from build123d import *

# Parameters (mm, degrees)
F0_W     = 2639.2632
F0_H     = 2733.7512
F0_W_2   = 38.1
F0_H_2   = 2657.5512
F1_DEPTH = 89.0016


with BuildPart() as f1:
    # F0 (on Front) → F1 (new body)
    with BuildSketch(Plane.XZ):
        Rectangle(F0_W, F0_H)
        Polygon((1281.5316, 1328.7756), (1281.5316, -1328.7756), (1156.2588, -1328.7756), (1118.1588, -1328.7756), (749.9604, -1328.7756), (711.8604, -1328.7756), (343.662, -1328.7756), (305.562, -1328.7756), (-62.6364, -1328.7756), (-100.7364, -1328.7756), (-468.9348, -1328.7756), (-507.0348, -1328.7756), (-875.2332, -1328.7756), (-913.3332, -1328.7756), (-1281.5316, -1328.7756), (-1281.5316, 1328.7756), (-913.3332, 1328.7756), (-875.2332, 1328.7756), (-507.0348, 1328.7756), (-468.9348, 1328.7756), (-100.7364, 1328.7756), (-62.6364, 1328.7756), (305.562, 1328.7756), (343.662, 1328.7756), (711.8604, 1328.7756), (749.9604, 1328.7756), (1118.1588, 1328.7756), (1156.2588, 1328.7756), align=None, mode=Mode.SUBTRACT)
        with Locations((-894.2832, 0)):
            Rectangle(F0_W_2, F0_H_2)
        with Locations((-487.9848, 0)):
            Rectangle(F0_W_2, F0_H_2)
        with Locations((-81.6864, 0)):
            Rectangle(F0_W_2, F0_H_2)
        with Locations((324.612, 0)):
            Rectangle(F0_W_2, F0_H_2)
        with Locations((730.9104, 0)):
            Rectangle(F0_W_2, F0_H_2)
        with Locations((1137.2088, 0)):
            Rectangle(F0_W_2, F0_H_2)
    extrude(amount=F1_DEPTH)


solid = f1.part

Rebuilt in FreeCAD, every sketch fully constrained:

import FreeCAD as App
import Part
import Sketcher
from FreeCAD import Vector
Q = App.Units.Quantity

doc = App.newDocument("Part")
params = doc.addObject("Spreadsheet::Sheet", "Params")
for row, (alias, value) in enumerate([
    ("sketch1_width", "103.908 in"),
    ("sketch1_width2", "14.496 in"),
    ("sketch1_height", "107.628 in"),
    ("pad1_length", "3.504 in"),
], start=1):
    params.set(f"A{row}", alias)
    params.set(f"B{row}", "=" + value)
    params.setAlias(f"B{row}", alias)

body = doc.addObject("PartDesign::Body", "Body")

sketch1 = doc.addObject("Sketcher::SketchObject", "Sketch")
body.addObject(sketch1)
sketch1.AttachmentSupport = (doc.XZ_Plane, [""])
sketch1.MapMode = "FlatFace"
sketch1.addGeometry(Part.LineSegment(Vector(-1319.6316, 1366.8756, 0), Vector(-1319.6316, -1366.8756, 0)), False)
sketch1.addGeometry(Part.LineSegment(Vector(-1319.6316, -1366.8756, 0), Vector(1319.6316, -1366.8756, 0)), False)
sketch1.addGeometry(Part.LineSegment(Vector(1319.6316, -1366.8756, 0), Vector(1319.6316, 1366.8756, 0)), False)
sketch1.addGeometry(Part.LineSegment(Vector(1319.6316, 1366.8756, 0), Vector(-1319.6316, 1366.8756, 0)), False)
sketch1.addGeometry(Part.LineSegment(Vector(-1281.5316, 1328.7756, 0), Vector(-913.3332, 1328.7756, 0)), False)
sketch1.addGeometry(Part.LineSegment(Vector(-913.3332, 1328.7756, 0), Vector(-913.3332, -1328.7756, 0)), False)
sketch1.addGeometry(Part.LineSegment(Vector(-913.3332, -1328.7756, 0), Vector(-1281.5316, -1328.7756, 0)), False)
sketch1.addGeometry(Part.LineSegment(Vector(-1281.5316, -1328.7756, 0), Vector(-1281.5316, 1328.7756, 0)), False)
sketch1.addGeometry(Part.LineSegment(Vector(-875.2332, 1328.7756, 0), Vector(-507.0348, 1328.7756, 0)), False)
sketch1.addGeometry(Part.LineSegment(Vector(-507.0348, 1328.7756, 0), Vector(-507.0348, -1328.7756, 0)), False)
sketch1.addGeometry(Part.LineSegment(Vector(-507.0348, -1328.7756, 0), Vector(-875.2332, -1328.7756, 0)), False)
sketch1.addGeometry(Part.LineSegment(Vector(-875.2332, -1328.7756, 0), Vector(-875.2332, 1328.7756, 0)), False)
sketch1.addGeometry(Part.LineSegment(Vector(-468.9348, 1328.7756, 0), Vector(-100.7364, 1328.7756, 0)), False)
sketch1.addGeometry(Part.LineSegment(Vector(-100.7364, 1328.7756, 0), Vector(-100.7364, -1328.7756, 0)), False)
sketch1.addGeometry(Part.LineSegment(Vector(-100.7364, -1328.7756, 0), Vector(-468.9348, -1328.7756, 0)), False)
sketch1.addGeometry(Part.LineSegment(Vector(-468.9348, -1328.7756, 0), Vector(-468.9348, 1328.7756, 0)), False)
sketch1.addGeometry(Part.LineSegment(Vector(-62.6364, 1328.7756, 0), Vector(305.562, 1328.7756, 0)), False)
sketch1.addGeometry(Part.LineSegment(Vector(305.562, 1328.7756, 0), Vector(305.562, -1328.7756, 0)), False)
sketch1.addGeometry(Part.LineSegment(Vector(305.562, -1328.7756, 0), Vector(-62.6364, -1328.7756, 0)), False)
sketch1.addGeometry(Part.LineSegment(Vector(-62.6364, -1328.7756, 0), Vector(-62.6364, 1328.7756, 0)), False)
sketch1.addGeometry(Part.LineSegment(Vector(343.662, 1328.7756, 0), Vector(711.8604, 1328.7756, 0)), False)
sketch1.addGeometry(Part.LineSegment(Vector(711.8604, 1328.7756, 0), Vector(711.8604, -1328.7756, 0)), False)
sketch1.addGeometry(Part.LineSegment(Vector(711.8604, -1328.7756, 0), Vector(343.662, -1328.7756, 0)), False)
sketch1.addGeometry(Part.LineSegment(Vector(343.662, -1328.7756, 0), Vector(343.662, 1328.7756, 0)), False)
sketch1.addGeometry(Part.LineSegment(Vector(749.9604, 1328.7756, 0), Vector(1118.1588, 1328.7756, 0)), False)
sketch1.addGeometry(Part.LineSegment(Vector(1118.1588, 1328.7756, 0), Vector(1118.1588, -1328.7756, 0)), False)
sketch1.addGeometry(Part.LineSegment(Vector(1118.1588, -1328.7756, 0), Vector(749.9604, -1328.7756, 0)), False)
sketch1.addGeometry(Part.LineSegment(Vector(749.9604, -1328.7756, 0), Vector(749.9604, 1328.7756, 0)), False)
sketch1.addGeometry(Part.LineSegment(Vector(1156.2588, 1328.7756, 0), Vector(1281.5316, 1328.7756, 0)), False)
sketch1.addGeometry(Part.LineSegment(Vector(1281.5316, 1328.7756, 0), Vector(1281.5316, -1328.7756, 0)), False)
sketch1.addGeometry(Part.LineSegment(Vector(1281.5316, -1328.7756, 0), Vector(1156.2588, -1328.7756, 0)), False)
sketch1.addGeometry(Part.LineSegment(Vector(1156.2588, -1328.7756, 0), Vector(1156.2588, 1328.7756, 0)), False)
sketch1.addConstraint(Sketcher.Constraint("Coincident", 0, 2, 1, 1))
sketch1.addConstraint(Sketcher.Constraint("Coincident", 1, 2, 2, 1))
sketch1.addConstraint(Sketcher.Constraint("Coincident", 2, 2, 3, 1))
sketch1.addConstraint(Sketcher.Constraint("Coincident", 3, 2, 0, 1))
sketch1.addConstraint(Sketcher.Constraint("Coincident", 4, 2, 5, 1))
sketch1.addConstraint(Sketcher.Constraint("Coincident", 5, 2, 6, 1))
sketch1.addConstraint(Sketcher.Constraint("Coincident", 6, 2, 7, 1))
sketch1.addConstraint(Sketcher.Constraint("Coincident", 7, 2, 4, 1))
sketch1.addConstraint(Sketcher.Constraint("Coincident", 8, 2, 9, 1))
sketch1.addConstraint(Sketcher.Constraint("Coincident", 9, 2, 10, 1))
sketch1.addConstraint(Sketcher.Constraint("Coincident", 10, 2, 11, 1))
sketch1.addConstraint(Sketcher.Constraint("Coincident", 11, 2, 8, 1))
sketch1.addConstraint(Sketcher.Constraint("Coincident", 12, 2, 13, 1))
sketch1.addConstraint(Sketcher.Constraint("Coincident", 13, 2, 14, 1))
sketch1.addConstraint(Sketcher.Constraint("Coincident", 14, 2, 15, 1))
sketch1.addConstraint(Sketcher.Constraint("Coincident", 15, 2, 12, 1))
sketch1.addConstraint(Sketcher.Constraint("Coincident", 16, 2, 17, 1))
sketch1.addConstraint(Sketcher.Constraint("Coincident", 17, 2, 18, 1))
sketch1.addConstraint(Sketcher.Constraint("Coincident", 18, 2, 19, 1))
sketch1.addConstraint(Sketcher.Constraint("Coincident", 19, 2, 16, 1))
sketch1.addConstraint(Sketcher.Constraint("Coincident", 20, 2, 21, 1))
sketch1.addConstraint(Sketcher.Constraint("Coincident", 21, 2, 22, 1))
sketch1.addConstraint(Sketcher.Constraint("Coincident", 22, 2, 23, 1))
sketch1.addConstraint(Sketcher.Constraint("Coincident", 23, 2, 20, 1))
sketch1.addConstraint(Sketcher.Constraint("Coincident", 24, 2, 25, 1))
sketch1.addConstraint(Sketcher.Constraint("Coincident", 25, 2, 26, 1))
sketch1.addConstraint(Sketcher.Constraint("Coincident", 26, 2, 27, 1))
sketch1.addConstraint(Sketcher.Constraint("Coincident", 27, 2, 24, 1))
sketch1.addConstraint(Sketcher.Constraint("Coincident", 28, 2, 29, 1))
sketch1.addConstraint(Sketcher.Constraint("Coincident", 29, 2, 30, 1))
sketch1.addConstraint(Sketcher.Constraint("Coincident", 30, 2, 31, 1))
sketch1.addConstraint(Sketcher.Constraint("Coincident", 31, 2, 28, 1))
sketch1.addConstraint(Sketcher.Constraint("Vertical", 0))
sketch1.addConstraint(Sketcher.Constraint("Horizontal", 1))
sketch1.addConstraint(Sketcher.Constraint("Vertical", 2))
sketch1.addConstraint(Sketcher.Constraint("Horizontal", 3))
sketch1.addConstraint(Sketcher.Constraint("Horizontal", 4))
sketch1.addConstraint(Sketcher.Constraint("Vertical", 5))
sketch1.addConstraint(Sketcher.Constraint("Horizontal", 6))
sketch1.addConstraint(Sketcher.Constraint("Vertical", 7))
sketch1.addConstraint(Sketcher.Constraint("Horizontal", 8))
sketch1.addConstraint(Sketcher.Constraint("Vertical", 9))
sketch1.addConstraint(Sketcher.Constraint("Horizontal", 10))
sketch1.addConstraint(Sketcher.Constraint("Vertical", 11))
sketch1.addConstraint(Sketcher.Constraint("Horizontal", 12))
sketch1.addConstraint(Sketcher.Constraint("Vertical", 13))
sketch1.addConstraint(Sketcher.Constraint("Horizontal", 14))
sketch1.addConstraint(Sketcher.Constraint("Vertical", 15))
sketch1.addConstraint(Sketcher.Constraint("Horizontal", 16))
sketch1.addConstraint(Sketcher.Constraint("Vertical", 17))
sketch1.addConstraint(Sketcher.Constraint("Horizontal", 18))
sketch1.addConstraint(Sketcher.Constraint("Vertical", 19))
sketch1.addConstraint(Sketcher.Constraint("Horizontal", 20))
sketch1.addConstraint(Sketcher.Constraint("Vertical", 21))
sketch1.addConstraint(Sketcher.Constraint("Horizontal", 22))
sketch1.addConstraint(Sketcher.Constraint("Vertical", 23))
sketch1.addConstraint(Sketcher.Constraint("Horizontal", 24))
sketch1.addConstraint(Sketcher.Constraint("Vertical", 25))
sketch1.addConstraint(Sketcher.Constraint("Horizontal", 26))
sketch1.addConstraint(Sketcher.Constraint("Vertical", 27))
sketch1.addConstraint(Sketcher.Constraint("Horizontal", 28))
sketch1.addConstraint(Sketcher.Constraint("Vertical", 29))
sketch1.addConstraint(Sketcher.Constraint("Horizontal", 30))
sketch1.addConstraint(Sketcher.Constraint("Vertical", 31))
sketch1.addConstraint(Sketcher.Constraint("Symmetric", 0, 2, 2, 2, -1, 1))
sketch1.addConstraint(Sketcher.Constraint("Symmetric", 6, 2, 28, 2, -1, 1))
sketch1.addConstraint(Sketcher.Constraint("Horizontal", 7, 2, 8, 2))
sketch1.addConstraint(Sketcher.Constraint("Horizontal", 6, 2, 9, 2))
sketch1.addConstraint(Sketcher.Constraint("Horizontal", 11, 2, 12, 2))
sketch1.addConstraint(Sketcher.Constraint("Horizontal", 10, 2, 13, 2))
sketch1.addConstraint(Sketcher.Constraint("Horizontal", 15, 2, 16, 2))
sketch1.addConstraint(Sketcher.Constraint("Horizontal", 14, 2, 17, 2))
sketch1.addConstraint(Sketcher.Constraint("Horizontal", 19, 2, 20, 2))
sketch1.addConstraint(Sketcher.Constraint("Horizontal", 18, 2, 21, 2))
sketch1.addConstraint(Sketcher.Constraint("Horizontal", 23, 2, 24, 2))
sketch1.addConstraint(Sketcher.Constraint("Horizontal", 22, 2, 25, 2))
sketch1.addConstraint(Sketcher.Constraint("Horizontal", 27, 2, 28, 2))
sketch1.addConstraint(Sketcher.Constraint("Horizontal", 26, 2, 29, 2))
sketch1.addConstraint(Sketcher.Constraint("Equal", 6, 8))
sketch1.addConstraint(Sketcher.Constraint("Equal", 10, 12))
sketch1.addConstraint(Sketcher.Constraint("Equal", 14, 16))
sketch1.addConstraint(Sketcher.Constraint("Equal", 18, 20))
sketch1.addConstraint(Sketcher.Constraint("Equal", 22, 24))
sketch1.addConstraint(Sketcher.Constraint("DistanceY", 4, 2, 3, 2, Q("1.5 in")))
sketch1.addConstraint(Sketcher.Constraint("DistanceX", 0, 2, 6, 2, Q("1.5 in")))
sketch1.addConstraint(Sketcher.Constraint("DistanceX", 5, 2, 10, 2, Q("1.5 in")))
sketch1.addConstraint(Sketcher.Constraint("DistanceX", 9, 2, 14, 2, Q("1.5 in")))
sketch1.addConstraint(Sketcher.Constraint("DistanceX", 13, 2, 18, 2, Q("1.5 in")))
sketch1.addConstraint(Sketcher.Constraint("DistanceX", 17, 2, 22, 2, Q("1.5 in")))
sketch1.addConstraint(Sketcher.Constraint("DistanceX", 21, 2, 26, 2, Q("1.5 in")))
sketch1.addConstraint(Sketcher.Constraint("DistanceX", 25, 2, 30, 2, Q("1.5 in")))
sketch1.addConstraint(Sketcher.Constraint("DistanceX", 1, 1, 1, 2, Q("103.908 in")))
sketch1.addConstraint(Sketcher.Constraint("DistanceX", 4, 1, 4, 2, Q("14.496 in")))
sketch1.addConstraint(Sketcher.Constraint("DistanceY", 0, 2, 0, 1, Q("107.628 in")))
sketch1.setExpression("Constraints[91]", "Params.sketch1_width")
sketch1.setExpression("Constraints[92]", "Params.sketch1_width2")
sketch1.setExpression("Constraints[93]", "Params.sketch1_height")
pad1 = doc.addObject("PartDesign::Pad", "Pad")
body.addObject(pad1)
pad1.Profile = sketch1
pad1.setExpression("Length", "Params.pad1_length")

doc.recompute()
